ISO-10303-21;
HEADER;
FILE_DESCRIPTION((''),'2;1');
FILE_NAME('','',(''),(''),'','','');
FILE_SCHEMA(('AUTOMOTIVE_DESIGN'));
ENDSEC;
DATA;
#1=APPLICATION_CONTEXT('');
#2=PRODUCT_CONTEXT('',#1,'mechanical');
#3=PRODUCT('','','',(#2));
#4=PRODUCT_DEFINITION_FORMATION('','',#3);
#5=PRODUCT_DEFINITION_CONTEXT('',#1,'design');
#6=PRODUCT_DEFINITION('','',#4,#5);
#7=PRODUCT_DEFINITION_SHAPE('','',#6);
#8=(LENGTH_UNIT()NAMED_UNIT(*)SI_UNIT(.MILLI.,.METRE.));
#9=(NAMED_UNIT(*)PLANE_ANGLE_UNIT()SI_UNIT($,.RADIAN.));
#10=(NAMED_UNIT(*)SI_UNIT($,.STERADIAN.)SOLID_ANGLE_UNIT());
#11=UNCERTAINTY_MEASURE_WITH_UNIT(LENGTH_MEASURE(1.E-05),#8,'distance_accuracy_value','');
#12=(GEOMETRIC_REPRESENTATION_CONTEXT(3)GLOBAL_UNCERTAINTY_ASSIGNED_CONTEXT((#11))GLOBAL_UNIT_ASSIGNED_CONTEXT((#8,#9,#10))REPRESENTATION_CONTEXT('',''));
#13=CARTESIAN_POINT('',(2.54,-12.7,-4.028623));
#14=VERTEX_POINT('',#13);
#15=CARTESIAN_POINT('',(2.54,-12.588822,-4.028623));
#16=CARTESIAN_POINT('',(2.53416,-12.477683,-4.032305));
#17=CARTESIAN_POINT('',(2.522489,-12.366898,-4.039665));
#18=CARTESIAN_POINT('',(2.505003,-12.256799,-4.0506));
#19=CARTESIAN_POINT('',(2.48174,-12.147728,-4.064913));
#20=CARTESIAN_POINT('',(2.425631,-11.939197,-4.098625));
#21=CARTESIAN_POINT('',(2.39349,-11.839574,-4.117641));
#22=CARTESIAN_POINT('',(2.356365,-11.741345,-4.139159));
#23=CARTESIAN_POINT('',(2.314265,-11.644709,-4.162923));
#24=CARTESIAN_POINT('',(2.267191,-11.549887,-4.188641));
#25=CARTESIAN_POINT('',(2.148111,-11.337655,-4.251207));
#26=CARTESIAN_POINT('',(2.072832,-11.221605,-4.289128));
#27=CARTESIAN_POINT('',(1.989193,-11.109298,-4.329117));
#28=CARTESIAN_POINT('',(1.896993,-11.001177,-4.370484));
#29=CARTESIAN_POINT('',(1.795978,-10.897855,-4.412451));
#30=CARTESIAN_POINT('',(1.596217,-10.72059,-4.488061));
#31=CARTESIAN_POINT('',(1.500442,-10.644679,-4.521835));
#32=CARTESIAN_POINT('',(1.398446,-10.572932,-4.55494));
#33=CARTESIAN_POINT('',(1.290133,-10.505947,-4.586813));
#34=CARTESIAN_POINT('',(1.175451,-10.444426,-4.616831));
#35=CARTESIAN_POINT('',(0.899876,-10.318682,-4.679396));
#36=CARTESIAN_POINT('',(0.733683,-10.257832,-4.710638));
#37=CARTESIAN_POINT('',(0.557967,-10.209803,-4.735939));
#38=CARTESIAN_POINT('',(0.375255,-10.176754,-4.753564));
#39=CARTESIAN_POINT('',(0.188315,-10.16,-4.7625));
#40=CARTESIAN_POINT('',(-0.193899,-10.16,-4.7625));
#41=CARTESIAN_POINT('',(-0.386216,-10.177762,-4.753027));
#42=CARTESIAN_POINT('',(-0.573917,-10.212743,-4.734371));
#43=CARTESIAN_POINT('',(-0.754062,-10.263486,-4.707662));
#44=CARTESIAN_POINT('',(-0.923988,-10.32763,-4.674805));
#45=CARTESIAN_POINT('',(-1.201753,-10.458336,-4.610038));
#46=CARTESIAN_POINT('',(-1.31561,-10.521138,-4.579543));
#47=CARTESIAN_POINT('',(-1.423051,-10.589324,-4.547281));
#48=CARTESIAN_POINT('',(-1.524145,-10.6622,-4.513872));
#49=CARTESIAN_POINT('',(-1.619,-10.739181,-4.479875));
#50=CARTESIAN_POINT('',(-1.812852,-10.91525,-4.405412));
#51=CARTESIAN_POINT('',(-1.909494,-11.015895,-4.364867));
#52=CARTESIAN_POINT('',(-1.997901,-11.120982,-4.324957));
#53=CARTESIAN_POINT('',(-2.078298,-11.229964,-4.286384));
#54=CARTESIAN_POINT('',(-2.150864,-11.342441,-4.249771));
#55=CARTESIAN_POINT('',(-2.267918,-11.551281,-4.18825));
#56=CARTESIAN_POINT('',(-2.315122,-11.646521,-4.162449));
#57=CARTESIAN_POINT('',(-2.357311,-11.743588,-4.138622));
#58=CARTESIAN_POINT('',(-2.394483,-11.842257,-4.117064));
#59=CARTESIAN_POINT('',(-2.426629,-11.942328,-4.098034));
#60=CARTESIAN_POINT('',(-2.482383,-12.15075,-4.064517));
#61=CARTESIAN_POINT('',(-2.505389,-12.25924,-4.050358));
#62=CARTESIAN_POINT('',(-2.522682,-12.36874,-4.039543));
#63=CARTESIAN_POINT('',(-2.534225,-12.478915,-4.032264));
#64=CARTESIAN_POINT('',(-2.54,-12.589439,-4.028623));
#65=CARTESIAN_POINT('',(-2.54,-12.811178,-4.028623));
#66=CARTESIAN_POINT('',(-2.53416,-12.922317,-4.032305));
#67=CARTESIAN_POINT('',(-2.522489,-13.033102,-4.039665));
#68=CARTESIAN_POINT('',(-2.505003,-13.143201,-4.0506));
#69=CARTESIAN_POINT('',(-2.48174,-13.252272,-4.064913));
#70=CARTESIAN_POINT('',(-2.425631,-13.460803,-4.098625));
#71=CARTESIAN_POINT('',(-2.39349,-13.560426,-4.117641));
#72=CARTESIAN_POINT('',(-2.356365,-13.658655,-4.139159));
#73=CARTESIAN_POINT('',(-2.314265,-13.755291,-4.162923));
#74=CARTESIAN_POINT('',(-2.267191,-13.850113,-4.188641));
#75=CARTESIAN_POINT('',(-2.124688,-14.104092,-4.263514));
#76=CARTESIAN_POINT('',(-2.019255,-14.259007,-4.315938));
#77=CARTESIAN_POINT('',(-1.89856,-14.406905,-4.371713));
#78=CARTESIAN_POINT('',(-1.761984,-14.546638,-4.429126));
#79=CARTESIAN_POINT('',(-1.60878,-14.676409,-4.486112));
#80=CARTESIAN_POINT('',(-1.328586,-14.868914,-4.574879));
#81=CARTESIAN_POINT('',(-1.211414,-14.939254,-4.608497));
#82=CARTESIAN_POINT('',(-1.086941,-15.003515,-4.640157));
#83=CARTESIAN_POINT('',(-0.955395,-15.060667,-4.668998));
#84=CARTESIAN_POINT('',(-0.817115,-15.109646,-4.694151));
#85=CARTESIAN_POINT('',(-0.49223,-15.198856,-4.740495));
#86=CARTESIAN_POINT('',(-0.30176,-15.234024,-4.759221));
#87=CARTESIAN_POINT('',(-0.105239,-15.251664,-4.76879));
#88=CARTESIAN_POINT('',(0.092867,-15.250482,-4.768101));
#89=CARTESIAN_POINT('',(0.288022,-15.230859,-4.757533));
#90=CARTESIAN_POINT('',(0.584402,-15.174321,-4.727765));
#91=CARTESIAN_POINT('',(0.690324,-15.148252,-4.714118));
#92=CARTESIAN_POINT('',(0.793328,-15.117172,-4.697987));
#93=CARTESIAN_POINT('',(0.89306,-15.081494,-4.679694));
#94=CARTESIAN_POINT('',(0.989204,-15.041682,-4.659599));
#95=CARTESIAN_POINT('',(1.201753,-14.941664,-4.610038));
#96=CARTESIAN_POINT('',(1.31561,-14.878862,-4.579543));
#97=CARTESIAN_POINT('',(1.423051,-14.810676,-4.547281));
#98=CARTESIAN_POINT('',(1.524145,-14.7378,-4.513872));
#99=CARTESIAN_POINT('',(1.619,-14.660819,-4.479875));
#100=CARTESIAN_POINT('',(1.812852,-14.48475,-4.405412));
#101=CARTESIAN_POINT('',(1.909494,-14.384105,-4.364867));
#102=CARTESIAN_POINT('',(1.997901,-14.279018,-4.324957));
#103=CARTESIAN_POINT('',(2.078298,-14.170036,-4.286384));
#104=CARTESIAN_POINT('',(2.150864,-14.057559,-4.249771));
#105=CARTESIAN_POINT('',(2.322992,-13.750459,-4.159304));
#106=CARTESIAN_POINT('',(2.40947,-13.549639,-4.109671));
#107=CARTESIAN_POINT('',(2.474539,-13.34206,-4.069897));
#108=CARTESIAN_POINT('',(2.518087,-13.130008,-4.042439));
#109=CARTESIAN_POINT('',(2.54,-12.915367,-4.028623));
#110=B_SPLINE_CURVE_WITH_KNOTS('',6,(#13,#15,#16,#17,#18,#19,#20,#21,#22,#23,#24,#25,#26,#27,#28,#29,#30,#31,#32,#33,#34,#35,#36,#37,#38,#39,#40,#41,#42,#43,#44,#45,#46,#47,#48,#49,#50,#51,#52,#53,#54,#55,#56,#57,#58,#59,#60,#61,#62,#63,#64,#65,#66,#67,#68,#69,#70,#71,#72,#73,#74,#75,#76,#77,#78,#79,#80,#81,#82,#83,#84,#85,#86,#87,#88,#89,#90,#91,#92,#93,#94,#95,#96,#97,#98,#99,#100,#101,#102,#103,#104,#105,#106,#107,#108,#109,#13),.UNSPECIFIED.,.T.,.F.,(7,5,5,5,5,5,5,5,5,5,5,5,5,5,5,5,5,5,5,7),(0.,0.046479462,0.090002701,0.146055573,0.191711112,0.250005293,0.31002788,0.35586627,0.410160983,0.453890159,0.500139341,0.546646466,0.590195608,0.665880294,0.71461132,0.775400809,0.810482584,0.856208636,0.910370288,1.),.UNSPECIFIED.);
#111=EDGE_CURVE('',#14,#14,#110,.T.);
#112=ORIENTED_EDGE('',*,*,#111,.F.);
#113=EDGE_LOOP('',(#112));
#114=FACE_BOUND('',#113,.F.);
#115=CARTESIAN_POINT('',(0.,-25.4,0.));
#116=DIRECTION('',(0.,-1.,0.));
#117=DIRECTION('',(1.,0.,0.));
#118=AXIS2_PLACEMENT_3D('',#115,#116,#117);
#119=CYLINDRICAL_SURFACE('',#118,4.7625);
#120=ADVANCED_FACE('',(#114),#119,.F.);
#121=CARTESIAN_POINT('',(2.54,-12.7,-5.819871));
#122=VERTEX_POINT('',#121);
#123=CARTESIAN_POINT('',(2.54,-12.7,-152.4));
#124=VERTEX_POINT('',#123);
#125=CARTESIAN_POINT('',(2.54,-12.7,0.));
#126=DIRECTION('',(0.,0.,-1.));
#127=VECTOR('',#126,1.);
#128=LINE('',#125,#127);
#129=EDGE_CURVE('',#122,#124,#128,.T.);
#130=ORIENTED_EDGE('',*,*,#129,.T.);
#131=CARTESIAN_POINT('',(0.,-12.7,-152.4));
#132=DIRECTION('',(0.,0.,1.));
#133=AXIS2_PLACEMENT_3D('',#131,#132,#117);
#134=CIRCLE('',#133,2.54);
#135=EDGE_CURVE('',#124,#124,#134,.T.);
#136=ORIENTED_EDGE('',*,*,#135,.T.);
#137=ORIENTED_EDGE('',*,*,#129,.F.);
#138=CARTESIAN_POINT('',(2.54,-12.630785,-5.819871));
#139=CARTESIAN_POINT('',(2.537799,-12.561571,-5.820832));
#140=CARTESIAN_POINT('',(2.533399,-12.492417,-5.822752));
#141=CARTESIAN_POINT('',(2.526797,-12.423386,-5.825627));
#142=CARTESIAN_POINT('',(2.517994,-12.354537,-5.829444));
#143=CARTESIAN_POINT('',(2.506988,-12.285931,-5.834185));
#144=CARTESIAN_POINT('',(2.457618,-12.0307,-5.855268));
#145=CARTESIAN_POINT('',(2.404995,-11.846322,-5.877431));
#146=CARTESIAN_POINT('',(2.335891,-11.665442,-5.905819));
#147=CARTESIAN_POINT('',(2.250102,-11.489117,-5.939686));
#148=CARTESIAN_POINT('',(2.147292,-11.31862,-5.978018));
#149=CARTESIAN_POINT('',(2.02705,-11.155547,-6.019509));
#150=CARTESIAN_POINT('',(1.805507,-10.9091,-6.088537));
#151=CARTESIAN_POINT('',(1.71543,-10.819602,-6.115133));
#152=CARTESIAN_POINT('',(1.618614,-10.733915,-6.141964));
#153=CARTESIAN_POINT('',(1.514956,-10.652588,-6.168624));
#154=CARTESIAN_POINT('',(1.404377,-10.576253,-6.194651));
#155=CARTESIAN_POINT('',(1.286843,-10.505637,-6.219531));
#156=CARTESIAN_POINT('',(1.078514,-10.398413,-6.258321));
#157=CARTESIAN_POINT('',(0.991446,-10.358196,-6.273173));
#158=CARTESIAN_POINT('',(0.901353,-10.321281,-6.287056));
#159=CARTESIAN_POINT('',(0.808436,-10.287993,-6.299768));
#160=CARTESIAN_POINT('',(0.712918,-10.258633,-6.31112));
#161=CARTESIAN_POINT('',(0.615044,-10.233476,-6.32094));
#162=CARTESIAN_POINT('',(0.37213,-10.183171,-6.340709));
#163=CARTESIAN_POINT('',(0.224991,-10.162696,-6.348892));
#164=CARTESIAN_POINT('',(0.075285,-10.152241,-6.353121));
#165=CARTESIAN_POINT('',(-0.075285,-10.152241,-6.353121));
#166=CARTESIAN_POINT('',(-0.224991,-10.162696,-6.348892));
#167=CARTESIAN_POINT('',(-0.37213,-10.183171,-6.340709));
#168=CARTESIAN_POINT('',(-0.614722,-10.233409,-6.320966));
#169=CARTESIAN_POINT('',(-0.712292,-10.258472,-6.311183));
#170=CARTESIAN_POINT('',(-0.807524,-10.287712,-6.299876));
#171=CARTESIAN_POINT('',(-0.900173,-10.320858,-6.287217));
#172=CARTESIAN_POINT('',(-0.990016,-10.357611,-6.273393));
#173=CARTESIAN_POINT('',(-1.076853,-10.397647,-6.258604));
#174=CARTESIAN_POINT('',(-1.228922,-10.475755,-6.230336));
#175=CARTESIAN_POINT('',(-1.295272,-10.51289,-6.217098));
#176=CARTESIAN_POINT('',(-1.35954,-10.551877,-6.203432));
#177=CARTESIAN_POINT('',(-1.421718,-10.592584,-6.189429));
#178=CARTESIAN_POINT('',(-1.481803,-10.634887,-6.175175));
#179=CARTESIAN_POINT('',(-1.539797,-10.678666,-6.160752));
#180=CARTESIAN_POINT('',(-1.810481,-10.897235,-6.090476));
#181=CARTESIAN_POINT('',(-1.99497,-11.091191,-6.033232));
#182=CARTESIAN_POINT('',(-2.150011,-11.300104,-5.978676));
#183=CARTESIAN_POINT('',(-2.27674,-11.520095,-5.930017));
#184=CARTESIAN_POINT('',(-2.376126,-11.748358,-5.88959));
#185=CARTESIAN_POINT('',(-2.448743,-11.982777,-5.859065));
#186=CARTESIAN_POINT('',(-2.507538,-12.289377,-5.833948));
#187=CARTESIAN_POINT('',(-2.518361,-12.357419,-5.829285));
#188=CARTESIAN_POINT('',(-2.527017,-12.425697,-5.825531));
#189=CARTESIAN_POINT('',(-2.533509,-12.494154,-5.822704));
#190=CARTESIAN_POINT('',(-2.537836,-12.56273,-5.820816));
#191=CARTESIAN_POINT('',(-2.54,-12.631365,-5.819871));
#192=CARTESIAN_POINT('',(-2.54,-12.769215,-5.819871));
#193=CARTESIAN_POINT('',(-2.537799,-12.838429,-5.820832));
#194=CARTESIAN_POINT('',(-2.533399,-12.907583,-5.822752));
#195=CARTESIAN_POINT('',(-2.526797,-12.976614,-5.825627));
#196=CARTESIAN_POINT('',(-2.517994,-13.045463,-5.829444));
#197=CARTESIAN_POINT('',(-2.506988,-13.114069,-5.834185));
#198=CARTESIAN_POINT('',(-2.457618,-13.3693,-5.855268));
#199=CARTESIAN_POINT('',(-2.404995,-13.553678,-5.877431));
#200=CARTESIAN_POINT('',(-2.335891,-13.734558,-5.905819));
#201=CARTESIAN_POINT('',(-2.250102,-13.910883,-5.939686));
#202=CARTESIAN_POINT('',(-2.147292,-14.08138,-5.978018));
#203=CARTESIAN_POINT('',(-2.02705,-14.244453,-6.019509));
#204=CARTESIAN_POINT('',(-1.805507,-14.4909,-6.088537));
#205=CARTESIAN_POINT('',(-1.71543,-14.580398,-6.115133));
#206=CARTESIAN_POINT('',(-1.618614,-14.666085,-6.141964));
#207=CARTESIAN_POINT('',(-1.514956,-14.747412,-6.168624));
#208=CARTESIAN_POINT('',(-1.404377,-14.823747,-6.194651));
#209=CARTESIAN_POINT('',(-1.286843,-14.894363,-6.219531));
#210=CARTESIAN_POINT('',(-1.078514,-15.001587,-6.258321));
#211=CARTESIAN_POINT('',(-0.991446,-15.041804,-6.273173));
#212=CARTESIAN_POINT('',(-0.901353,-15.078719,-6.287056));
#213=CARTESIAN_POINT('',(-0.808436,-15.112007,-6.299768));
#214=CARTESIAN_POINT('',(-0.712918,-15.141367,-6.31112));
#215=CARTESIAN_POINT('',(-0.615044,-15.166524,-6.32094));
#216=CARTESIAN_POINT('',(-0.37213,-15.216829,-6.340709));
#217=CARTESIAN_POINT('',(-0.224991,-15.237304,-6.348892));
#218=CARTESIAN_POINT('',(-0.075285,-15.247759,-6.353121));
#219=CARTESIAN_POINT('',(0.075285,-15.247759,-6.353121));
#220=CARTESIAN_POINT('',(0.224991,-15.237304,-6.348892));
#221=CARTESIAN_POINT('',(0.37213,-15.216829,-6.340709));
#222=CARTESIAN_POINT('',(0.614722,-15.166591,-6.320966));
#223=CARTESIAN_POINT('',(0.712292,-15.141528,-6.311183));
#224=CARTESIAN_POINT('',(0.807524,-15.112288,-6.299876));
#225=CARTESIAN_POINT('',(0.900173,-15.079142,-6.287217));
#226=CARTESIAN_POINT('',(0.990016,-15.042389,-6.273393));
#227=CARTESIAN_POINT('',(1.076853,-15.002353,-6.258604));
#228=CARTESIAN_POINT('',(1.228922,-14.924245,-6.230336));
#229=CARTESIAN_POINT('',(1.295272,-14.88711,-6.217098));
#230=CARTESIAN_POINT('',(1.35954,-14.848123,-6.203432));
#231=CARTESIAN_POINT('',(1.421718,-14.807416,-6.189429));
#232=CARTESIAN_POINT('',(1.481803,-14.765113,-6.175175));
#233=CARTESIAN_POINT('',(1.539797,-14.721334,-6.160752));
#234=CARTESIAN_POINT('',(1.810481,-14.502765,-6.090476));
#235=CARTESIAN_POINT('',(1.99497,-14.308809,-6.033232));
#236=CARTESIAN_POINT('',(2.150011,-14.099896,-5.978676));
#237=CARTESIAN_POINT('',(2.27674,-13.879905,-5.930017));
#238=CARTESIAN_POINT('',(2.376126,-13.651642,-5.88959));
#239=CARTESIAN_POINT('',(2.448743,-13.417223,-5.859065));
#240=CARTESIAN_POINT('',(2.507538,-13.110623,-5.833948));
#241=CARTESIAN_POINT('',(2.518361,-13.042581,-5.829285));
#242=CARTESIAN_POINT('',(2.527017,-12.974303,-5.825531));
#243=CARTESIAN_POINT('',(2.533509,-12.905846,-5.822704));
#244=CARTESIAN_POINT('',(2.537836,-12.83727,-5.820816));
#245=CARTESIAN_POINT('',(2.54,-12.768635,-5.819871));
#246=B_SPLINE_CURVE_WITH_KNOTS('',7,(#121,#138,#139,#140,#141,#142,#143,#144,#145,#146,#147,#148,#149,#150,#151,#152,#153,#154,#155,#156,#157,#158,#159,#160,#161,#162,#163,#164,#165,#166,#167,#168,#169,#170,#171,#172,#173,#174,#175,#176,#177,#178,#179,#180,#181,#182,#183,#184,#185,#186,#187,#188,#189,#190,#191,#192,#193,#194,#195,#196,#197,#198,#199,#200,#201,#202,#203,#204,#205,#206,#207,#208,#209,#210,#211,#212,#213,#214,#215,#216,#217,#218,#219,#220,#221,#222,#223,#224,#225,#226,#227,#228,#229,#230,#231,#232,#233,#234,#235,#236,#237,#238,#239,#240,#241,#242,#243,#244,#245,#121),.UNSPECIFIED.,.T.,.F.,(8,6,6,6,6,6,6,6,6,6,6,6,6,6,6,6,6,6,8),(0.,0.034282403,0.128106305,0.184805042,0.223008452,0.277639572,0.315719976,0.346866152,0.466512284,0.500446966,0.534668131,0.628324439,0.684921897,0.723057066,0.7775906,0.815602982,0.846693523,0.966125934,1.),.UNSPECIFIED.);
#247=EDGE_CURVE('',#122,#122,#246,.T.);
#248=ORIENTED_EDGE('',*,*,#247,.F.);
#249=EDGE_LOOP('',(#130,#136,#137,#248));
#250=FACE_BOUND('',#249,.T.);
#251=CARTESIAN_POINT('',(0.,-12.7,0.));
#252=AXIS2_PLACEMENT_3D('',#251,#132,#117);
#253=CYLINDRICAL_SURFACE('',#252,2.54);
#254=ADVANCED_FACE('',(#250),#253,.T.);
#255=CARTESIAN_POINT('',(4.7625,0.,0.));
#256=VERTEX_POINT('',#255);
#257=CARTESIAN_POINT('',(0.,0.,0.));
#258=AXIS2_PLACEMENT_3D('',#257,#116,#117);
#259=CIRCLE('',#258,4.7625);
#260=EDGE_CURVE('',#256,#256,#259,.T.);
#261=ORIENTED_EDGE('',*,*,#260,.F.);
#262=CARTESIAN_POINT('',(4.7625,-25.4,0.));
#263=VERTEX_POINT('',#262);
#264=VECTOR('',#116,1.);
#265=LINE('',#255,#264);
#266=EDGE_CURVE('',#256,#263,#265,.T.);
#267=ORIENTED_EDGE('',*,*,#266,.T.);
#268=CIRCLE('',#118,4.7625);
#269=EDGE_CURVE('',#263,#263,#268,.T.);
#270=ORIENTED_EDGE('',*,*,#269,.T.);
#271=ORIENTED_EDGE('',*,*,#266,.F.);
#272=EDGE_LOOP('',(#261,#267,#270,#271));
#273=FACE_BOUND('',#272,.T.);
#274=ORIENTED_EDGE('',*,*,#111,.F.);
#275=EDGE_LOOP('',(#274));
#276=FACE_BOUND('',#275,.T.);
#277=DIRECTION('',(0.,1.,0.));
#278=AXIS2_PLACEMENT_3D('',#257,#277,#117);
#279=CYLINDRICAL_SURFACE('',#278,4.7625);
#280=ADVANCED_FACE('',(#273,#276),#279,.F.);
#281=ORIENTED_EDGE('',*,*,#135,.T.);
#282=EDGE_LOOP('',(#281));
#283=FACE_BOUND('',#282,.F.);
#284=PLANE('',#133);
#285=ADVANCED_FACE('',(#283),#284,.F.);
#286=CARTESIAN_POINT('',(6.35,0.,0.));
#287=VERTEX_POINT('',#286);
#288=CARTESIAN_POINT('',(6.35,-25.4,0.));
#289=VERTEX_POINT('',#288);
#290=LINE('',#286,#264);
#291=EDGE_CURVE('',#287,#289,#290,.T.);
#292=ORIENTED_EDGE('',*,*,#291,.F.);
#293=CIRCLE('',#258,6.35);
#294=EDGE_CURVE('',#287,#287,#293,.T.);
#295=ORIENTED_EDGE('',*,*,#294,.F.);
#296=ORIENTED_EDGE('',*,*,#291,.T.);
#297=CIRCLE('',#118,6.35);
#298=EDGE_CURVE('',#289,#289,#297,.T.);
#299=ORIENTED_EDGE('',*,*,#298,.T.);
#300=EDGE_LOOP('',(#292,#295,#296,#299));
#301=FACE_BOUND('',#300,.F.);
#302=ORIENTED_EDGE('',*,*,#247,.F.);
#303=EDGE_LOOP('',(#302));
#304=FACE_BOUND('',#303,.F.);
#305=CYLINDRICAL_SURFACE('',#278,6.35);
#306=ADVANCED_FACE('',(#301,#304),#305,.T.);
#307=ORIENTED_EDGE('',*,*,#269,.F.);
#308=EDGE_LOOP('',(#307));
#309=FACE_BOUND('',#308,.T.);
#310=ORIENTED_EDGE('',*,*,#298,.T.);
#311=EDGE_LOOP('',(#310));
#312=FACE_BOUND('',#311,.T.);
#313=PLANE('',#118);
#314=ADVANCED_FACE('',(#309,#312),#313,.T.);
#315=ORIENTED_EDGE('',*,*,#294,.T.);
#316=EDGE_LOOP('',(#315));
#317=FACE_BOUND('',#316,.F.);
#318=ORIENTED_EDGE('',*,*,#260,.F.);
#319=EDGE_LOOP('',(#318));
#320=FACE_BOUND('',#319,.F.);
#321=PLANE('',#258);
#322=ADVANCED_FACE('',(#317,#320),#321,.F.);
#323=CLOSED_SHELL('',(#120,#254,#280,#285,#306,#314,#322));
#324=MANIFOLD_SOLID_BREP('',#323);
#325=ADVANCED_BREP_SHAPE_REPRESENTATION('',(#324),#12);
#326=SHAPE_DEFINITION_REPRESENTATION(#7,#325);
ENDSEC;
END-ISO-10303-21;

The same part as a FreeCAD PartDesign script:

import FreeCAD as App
import Part
import Sketcher
Q = App.Units.Quantity

doc = App.newDocument("Part")
body = doc.addObject("PartDesign::Body", "Body")

# Sketch on XZ plane
sketch1 = doc.addObject("Sketcher::SketchObject", "Sketch")
body.addObject(sketch1)
sketch1.AttachmentSupport = (doc.XZ_Plane, [""])
sketch1.MapMode = "FlatFace"
sketch1.addGeometry([
    Part.Circle(App.Vector(0, 0, 0), App.Vector(0, 0, 1), 6.3),
    Part.Circle(App.Vector(0, 0, 0), App.Vector(0, 0, 1), 4.8),
], False)
sketch1.addConstraint([
    Sketcher.Constraint("Coincident", 0, 3, -1, 1),
    Sketcher.Constraint("Coincident", 1, 3, -1, 1),
    Sketcher.Constraint("Diameter", 0, Q("0.5 in")),
    Sketcher.Constraint("Diameter", 1, Q("0.375 in")),
])
pad1 = doc.addObject("PartDesign::Pad", "Pad")
body.addObject(pad1)
pad1.Profile = sketch1
pad1.Length = Q("1 in")

# Sketch on XY plane
sketch2 = doc.addObject("Sketcher::SketchObject", "Sketch001")
body.addObject(sketch2)
sketch2.AttachmentSupport = (doc.XY_Plane, [""])
sketch2.MapMode = "FlatFace"
sketch2.addGeometry(Part.Circle(App.Vector(0, -12.7, 0), App.Vector(0, 0, 1), 2.5), False)
sketch2.addConstraint([
    Sketcher.Constraint("PointOnObject", 0, 3, -2),
    Sketcher.Constraint("Diameter", 0, Q("0.2 in")),
    Sketcher.Constraint("DistanceY", 0, 3, -1, 1, Q("0.5 in")),
])
pad2 = doc.addObject("PartDesign::Pad", "Pad001")
body.addObject(pad2)
pad2.Profile = sketch2
pad2.Length = Q("6 in")
pad2.Reversed = True

# Sketch on XZ plane
sketch3 = doc.addObject("Sketcher::SketchObject", "Sketch002")
body.addObject(sketch3)
sketch3.AttachmentSupport = (doc.XZ_Plane, [""])
sketch3.MapMode = "FlatFace"
sketch3.AttachmentOffset = App.Placement(App.Vector(0, 0, 1 * 25.4), App.Rotation())
sketch3.addGeometry(Part.Circle(App.Vector(0, 0, 0), App.Vector(0, 0, 1), 4.8), False)
sketch3.addConstraint([
    Sketcher.Constraint("Coincident", 0, 3, -1, 1),
    Sketcher.Constraint("Diameter", 0, Q("0.375 in")),
])
pocket1 = doc.addObject("PartDesign::Pocket", "Pocket")
body.addObject(pocket1)
pocket1.Profile = sketch3
pocket1.Length = Q("1 in")

doc.recompute()
